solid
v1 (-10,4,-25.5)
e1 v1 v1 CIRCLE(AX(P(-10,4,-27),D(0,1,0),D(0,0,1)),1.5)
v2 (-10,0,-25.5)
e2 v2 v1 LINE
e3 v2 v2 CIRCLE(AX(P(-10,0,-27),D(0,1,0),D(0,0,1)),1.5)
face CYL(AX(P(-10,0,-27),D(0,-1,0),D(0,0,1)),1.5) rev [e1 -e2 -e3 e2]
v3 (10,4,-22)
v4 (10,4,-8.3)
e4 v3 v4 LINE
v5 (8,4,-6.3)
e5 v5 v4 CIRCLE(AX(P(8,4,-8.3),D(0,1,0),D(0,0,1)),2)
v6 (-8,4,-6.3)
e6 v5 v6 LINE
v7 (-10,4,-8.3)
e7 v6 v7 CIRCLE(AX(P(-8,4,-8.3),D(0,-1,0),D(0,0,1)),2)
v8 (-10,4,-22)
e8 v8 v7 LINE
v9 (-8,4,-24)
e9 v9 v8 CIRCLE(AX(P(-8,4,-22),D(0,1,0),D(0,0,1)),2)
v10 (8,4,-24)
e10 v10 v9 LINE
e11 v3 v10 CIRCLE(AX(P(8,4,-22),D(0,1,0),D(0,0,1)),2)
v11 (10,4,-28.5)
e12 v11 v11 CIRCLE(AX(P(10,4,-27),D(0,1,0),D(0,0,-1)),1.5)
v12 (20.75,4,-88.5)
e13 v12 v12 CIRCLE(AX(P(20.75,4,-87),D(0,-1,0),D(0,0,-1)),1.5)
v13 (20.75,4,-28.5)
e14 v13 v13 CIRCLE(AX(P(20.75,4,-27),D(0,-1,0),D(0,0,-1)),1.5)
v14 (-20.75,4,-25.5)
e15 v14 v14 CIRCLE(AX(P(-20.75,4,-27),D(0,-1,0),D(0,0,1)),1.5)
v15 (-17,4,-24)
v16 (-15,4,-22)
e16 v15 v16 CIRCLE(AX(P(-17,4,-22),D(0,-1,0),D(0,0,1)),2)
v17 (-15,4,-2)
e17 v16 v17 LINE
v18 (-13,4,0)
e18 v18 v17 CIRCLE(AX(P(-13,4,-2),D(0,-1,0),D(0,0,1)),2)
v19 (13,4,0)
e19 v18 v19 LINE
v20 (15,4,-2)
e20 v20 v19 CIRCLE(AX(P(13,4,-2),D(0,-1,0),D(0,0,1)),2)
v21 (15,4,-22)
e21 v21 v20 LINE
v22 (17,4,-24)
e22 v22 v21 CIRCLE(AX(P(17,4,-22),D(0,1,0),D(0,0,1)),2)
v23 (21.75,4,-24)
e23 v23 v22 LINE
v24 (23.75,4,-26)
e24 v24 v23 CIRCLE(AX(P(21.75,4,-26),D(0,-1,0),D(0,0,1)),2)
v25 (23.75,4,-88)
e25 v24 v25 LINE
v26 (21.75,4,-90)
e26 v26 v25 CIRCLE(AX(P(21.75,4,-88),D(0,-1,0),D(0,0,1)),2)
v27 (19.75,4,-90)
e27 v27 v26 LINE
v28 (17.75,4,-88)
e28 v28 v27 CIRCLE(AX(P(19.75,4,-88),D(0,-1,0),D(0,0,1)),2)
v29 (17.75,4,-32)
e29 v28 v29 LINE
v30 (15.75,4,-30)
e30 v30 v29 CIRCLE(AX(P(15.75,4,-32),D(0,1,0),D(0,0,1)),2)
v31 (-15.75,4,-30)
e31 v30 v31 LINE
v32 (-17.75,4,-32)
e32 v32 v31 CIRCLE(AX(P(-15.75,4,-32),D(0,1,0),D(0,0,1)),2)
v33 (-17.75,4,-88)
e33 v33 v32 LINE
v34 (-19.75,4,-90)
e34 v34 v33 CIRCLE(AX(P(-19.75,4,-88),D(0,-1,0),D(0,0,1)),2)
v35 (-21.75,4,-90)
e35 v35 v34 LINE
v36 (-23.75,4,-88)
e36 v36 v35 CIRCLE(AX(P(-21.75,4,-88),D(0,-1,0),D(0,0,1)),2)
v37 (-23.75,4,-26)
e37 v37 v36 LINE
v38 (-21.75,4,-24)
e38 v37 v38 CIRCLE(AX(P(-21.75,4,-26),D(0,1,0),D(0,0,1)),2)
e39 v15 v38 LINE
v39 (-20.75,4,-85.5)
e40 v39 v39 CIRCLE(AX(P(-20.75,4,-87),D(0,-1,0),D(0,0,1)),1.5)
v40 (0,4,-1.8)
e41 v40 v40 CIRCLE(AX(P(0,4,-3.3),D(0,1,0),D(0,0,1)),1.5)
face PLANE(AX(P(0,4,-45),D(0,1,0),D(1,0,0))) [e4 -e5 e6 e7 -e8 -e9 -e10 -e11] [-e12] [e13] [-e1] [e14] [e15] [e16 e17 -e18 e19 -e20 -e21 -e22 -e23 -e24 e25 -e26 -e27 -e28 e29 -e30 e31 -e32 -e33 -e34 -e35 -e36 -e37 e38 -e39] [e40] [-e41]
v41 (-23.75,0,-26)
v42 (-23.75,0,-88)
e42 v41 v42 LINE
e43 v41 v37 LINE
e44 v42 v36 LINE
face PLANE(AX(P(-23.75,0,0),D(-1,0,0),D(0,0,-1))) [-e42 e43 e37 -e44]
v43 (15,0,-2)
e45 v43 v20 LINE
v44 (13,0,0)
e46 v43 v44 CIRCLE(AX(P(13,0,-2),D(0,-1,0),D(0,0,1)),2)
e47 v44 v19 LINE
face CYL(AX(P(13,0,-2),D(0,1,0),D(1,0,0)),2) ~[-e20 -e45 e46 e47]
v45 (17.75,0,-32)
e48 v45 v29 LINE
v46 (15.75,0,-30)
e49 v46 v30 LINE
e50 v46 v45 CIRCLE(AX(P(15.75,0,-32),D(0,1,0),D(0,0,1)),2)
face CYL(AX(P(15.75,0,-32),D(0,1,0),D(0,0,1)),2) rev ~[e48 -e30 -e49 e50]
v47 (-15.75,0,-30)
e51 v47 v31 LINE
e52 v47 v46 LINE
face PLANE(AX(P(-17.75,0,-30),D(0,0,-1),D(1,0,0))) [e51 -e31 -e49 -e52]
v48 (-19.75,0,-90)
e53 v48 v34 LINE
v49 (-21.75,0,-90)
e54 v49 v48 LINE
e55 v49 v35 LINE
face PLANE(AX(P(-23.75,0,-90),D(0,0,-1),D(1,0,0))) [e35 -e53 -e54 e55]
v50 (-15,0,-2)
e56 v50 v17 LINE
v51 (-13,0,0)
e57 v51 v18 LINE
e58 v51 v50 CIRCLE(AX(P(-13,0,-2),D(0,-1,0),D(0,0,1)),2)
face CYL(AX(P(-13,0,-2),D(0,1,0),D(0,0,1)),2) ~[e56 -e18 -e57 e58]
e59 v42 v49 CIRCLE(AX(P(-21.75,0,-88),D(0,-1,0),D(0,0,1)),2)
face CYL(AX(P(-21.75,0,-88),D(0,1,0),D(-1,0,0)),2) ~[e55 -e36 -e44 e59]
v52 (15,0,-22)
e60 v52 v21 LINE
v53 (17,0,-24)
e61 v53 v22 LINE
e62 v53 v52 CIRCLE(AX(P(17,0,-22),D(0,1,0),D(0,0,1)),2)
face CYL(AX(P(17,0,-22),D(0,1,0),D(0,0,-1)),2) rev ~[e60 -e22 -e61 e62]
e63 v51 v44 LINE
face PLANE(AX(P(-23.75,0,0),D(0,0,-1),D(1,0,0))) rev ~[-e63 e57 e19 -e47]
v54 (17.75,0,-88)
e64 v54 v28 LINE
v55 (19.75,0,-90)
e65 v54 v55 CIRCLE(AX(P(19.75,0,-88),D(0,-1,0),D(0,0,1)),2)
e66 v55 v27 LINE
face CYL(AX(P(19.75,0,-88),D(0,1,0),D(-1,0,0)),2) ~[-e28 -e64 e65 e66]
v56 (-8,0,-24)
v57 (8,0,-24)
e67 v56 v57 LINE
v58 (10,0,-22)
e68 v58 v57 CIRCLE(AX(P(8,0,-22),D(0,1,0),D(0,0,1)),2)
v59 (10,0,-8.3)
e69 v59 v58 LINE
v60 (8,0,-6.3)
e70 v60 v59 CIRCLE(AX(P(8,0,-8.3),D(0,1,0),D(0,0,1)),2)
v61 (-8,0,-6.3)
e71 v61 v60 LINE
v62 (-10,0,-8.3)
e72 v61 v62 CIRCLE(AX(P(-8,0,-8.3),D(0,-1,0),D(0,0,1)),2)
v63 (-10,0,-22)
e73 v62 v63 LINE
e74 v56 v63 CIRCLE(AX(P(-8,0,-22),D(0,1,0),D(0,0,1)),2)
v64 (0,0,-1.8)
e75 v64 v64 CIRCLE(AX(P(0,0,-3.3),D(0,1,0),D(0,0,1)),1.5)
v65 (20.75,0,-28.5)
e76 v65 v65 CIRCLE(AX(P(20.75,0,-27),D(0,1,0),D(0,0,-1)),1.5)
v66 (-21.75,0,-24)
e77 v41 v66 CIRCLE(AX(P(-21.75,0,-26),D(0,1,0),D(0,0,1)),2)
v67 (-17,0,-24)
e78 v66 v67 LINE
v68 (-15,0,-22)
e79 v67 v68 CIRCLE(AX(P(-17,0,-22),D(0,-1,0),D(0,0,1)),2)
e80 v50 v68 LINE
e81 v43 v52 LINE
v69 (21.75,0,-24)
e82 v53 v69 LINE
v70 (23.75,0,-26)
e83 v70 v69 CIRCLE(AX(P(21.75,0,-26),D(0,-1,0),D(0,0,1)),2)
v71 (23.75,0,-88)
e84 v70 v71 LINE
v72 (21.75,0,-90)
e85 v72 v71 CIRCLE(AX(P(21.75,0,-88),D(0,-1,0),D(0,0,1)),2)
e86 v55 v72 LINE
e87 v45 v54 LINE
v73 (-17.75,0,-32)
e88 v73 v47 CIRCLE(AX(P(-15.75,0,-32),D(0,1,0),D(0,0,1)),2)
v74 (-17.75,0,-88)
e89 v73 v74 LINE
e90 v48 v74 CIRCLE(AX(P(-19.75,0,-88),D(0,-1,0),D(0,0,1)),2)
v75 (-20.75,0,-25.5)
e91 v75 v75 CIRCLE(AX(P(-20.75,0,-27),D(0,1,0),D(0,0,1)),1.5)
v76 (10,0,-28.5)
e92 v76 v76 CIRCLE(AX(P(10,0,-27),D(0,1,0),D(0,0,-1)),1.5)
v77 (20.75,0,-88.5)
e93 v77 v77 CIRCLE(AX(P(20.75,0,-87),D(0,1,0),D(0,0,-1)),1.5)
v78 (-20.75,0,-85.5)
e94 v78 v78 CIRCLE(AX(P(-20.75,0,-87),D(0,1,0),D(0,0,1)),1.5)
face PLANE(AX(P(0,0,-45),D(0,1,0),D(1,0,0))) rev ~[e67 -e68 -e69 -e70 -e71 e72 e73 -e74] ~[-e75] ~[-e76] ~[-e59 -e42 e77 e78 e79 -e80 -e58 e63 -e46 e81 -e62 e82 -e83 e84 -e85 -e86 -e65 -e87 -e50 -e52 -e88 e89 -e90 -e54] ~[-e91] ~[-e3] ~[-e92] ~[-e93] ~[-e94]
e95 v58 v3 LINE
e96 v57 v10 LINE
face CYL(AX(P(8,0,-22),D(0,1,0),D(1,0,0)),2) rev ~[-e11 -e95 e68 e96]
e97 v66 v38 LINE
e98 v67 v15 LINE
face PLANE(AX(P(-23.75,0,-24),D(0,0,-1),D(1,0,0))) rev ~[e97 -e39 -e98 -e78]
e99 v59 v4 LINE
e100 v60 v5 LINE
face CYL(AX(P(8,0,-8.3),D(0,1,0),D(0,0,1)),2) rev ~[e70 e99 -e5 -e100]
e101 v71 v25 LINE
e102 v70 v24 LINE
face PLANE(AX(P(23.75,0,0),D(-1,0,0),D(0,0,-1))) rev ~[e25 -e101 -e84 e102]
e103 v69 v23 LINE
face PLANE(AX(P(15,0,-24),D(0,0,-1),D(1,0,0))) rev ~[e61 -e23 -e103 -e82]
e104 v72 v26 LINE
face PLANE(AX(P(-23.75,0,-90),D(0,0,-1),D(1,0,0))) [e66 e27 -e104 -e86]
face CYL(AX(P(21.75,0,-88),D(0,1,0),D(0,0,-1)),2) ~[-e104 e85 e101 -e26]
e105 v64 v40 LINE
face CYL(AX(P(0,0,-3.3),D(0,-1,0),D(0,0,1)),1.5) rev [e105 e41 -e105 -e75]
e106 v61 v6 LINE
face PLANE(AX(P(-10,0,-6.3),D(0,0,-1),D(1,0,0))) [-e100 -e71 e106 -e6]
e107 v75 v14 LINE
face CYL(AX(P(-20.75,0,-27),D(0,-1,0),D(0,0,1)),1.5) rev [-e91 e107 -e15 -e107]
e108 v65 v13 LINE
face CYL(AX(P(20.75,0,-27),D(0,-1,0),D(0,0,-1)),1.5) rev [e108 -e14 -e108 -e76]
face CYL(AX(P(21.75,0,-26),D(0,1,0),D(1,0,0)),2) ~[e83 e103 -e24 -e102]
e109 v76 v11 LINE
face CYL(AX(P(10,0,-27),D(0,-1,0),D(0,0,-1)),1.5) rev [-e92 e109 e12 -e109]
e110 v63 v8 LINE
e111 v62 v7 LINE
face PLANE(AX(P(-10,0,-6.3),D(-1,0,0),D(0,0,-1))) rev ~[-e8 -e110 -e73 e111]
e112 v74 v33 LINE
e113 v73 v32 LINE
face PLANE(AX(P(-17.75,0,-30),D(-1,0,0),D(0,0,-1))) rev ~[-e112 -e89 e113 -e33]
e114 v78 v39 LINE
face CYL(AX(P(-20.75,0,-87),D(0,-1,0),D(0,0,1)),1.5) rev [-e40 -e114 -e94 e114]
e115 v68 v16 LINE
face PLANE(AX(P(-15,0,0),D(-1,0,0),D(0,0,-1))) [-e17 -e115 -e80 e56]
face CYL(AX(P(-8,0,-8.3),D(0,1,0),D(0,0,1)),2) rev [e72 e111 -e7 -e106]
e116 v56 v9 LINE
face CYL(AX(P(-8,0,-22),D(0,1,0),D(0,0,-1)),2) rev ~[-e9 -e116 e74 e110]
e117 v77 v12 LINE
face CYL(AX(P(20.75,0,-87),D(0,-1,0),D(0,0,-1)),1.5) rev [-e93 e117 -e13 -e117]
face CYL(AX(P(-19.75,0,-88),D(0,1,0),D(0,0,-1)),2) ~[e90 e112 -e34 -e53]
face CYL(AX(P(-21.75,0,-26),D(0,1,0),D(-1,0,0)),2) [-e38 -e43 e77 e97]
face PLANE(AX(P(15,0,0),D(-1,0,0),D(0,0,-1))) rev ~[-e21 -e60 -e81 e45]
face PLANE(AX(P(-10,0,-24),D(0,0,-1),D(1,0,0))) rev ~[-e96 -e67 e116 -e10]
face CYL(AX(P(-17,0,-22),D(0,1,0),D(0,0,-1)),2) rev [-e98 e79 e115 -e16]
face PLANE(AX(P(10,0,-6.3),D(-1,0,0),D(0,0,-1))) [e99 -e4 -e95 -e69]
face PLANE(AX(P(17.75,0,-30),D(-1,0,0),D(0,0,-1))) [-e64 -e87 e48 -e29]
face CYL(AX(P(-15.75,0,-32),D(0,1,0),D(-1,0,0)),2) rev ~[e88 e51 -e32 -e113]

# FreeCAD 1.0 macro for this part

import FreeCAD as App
import Part
import Sketcher
Q = App.Units.Quantity


def edges_at(feature, points):
    """Names of the edges that pass closest to the given points."""
    edges = feature.Shape.Edges
    near = lambda p: min(range(len(edges)), key=lambda i: edges[i].distToShape(Part.Vertex(*p))[0])
    return sorted({f"Edge{near(p) + 1}" for p in points})

doc = App.newDocument("Part")
body = doc.addObject("PartDesign::Body", "Body")

sketch1 = body.newObject("Sketcher::SketchObject", "Sketch")
sketch1.AttachmentSupport = (doc.getObject("XZ_Plane"), [""])
sketch1.MapMode = "FlatFace"
sketch1.addGeometry([
    Part.LineSegment(App.Vector(-23.75, -90, 0), App.Vector(-23.75, 0, 0)),
    Part.LineSegment(App.Vector(-23.75, 0, 0), App.Vector(23.75, 0, 0)),
    Part.LineSegment(App.Vector(23.75, 0, 0), App.Vector(23.75, -90, 0)),
    Part.LineSegment(App.Vector(23.75, -90, 0), App.Vector(-23.75, -90, 0)),
    Part.Circle(App.Vector(0, -3.3, 0), App.Vector(0, 0, 1), 1.5),
    Part.Circle(App.Vector(-10, -27, 0), App.Vector(0, 0, 1), 1.5),
    Part.Circle(App.Vector(10, -27, 0), App.Vector(0, 0, 1), 1.5),
], False)
sketch1.addConstraint([
    Sketcher.Constraint("Coincident", 0, 2, 1, 1),
    Sketcher.Constraint("Coincident", 1, 2, 2, 1),
    Sketcher.Constraint("Coincident", 2, 2, 3, 1),
    Sketcher.Constraint("Coincident", 3, 2, 0, 1),
    Sketcher.Constraint("Vertical", 0),
    Sketcher.Constraint("Horizontal", 1),
    Sketcher.Constraint("Vertical", 2),
    Sketcher.Constraint("Horizontal", 3),
    Sketcher.Constraint("Equal", 4, 5),
    Sketcher.Constraint("Equal", 5, 6),
    Sketcher.Constraint("Symmetric", 0, 2, 1, 2, -1, 1),
    Sketcher.Constraint("Symmetric", 5, 3, 6, 3, -2),
    Sketcher.Constraint("PointOnObject", 4, 3, -2),
    Sketcher.Constraint("Diameter", 4, Q("3 mm")),
    Sketcher.Constraint("DistanceY", 0, 1, 0, 2, Q("90 mm")),
    Sketcher.Constraint("DistanceX", 1, 1, 1, 2, Q("47.5 mm")),
    Sketcher.Constraint("DistanceX", 5, 3, -1, 1, Q("10 mm")),
    Sketcher.Constraint("DistanceY", 5, 3, -1, 1, Q("27 mm")),
    Sketcher.Constraint("DistanceY", 4, 3, -1, 1, Q("3.3 mm")),
])
pad1 = body.newObject("PartDesign::Pad", "Pad")
pad1.Profile = sketch1
pad1.Length = 4
pad1.Reversed = True

sketch2 = body.newObject("Sketcher::SketchObject", "Sketch001")
sketch2.AttachmentSupport = (doc.getObject("XZ_Plane"), [""])
sketch2.MapMode = "FlatFace"
sketch2.addGeometry([
    Part.Circle(App.Vector(-20.75, -87, 0), App.Vector(0, 0, 1), 1.5),
    Part.Circle(App.Vector(20.75, -87, 0), App.Vector(0, 0, 1), 1.5),
    Part.Circle(App.Vector(-20.75, -27, 0), App.Vector(0, 0, 1), 1.5),
    Part.Circle(App.Vector(20.75, -27, 0), App.Vector(0, 0, 1), 1.5),
    Part.LineSegment(App.Vector(-17.75, -90, 0), App.Vector(-17.75, -30, 0)),
    Part.LineSegment(App.Vector(-17.75, -30, 0), App.Vector(17.75, -30, 0)),
    Part.LineSegment(App.Vector(17.75, -30, 0), App.Vector(17.75, -90, 0)),
    Part.LineSegment(App.Vector(17.75, -90, 0), App.Vector(-17.75, -90, 0)),
    Part.LineSegment(App.Vector(-23.75, -24, 0), App.Vector(-23.75, 0, 0)),
    Part.LineSegment(App.Vector(-23.75, 0, 0), App.Vector(-15, 0, 0)),
    Part.LineSegment(App.Vector(-15, 0, 0), App.Vector(-15, -24, 0)),
    Part.LineSegment(App.Vector(-15, -24, 0), App.Vector(-23.75, -24, 0)),
    Part.LineSegment(App.Vector(15, -24, 0), App.Vector(15, 0, 0)),
    Part.LineSegment(App.Vector(15, 0, 0), App.Vector(23.75, 0, 0)),
    Part.LineSegment(App.Vector(23.75, 0, 0), App.Vector(23.75, -24, 0)),
    Part.LineSegment(App.Vector(23.75, -24, 0), App.Vector(15, -24, 0)),
    Part.LineSegment(App.Vector(-10, -24, 0), App.Vector(-10, -6.3, 0)),
    Part.LineSegment(App.Vector(-10, -6.3, 0), App.Vector(10, -6.3, 0)),
    Part.LineSegment(App.Vector(10, -6.3, 0), App.Vector(10, -24, 0)),
    Part.LineSegment(App.Vector(10, -24, 0), App.Vector(-10, -24, 0)),
], False)
sketch2.addConstraint([
    Sketcher.Constraint("Coincident", 4, 2, 5, 1),
    Sketcher.Constraint("Coincident", 5, 2, 6, 1),
    Sketcher.Constraint("Coincident", 6, 2, 7, 1),
    Sketcher.Constraint("Coincident", 7, 2, 4, 1),
    Sketcher.Constraint("Coincident", 8, 2, 9, 1),
    Sketcher.Constraint("Coincident", 9, 2, 10, 1),
    Sketcher.Constraint("Coincident", 10, 2, 11, 1),
    Sketcher.Constraint("Coincident", 11, 2, 8, 1),
    Sketcher.Constraint("Coincident", 12, 2, 13, 1),
    Sketcher.Constraint("Coincident", 13, 2, 14, 1),
    Sketcher.Constraint("Coincident", 14, 2, 15, 1),
    Sketcher.Constraint("Coincident", 15, 2, 12, 1),
    Sketcher.Constraint("Coincident", 16, 2, 17, 1),
    Sketcher.Constraint("Coincident", 17, 2, 18, 1),
    Sketcher.Constraint("Coincident", 18, 2, 19, 1),
    Sketcher.Constraint("Coincident", 19, 2, 16, 1),
    Sketcher.Constraint("Vertical", 4),
    Sketcher.Constraint("Horizontal", 5),
    Sketcher.Constraint("Vertical", 6),
    Sketcher.Constraint("Horizontal", 7),
    Sketcher.Constraint("Vertical", 8),
    Sketcher.Constraint("Horizontal", 9),
    Sketcher.Constraint("Vertical", 10),
    Sketcher.Constraint("Horizontal", 11),
    Sketcher.Constraint("Vertical", 12),
    Sketcher.Constraint("Horizontal", 13),
    Sketcher.Constraint("Vertical", 14),
    Sketcher.Constraint("Horizontal", 15),
    Sketcher.Constraint("Vertical", 16),
    Sketcher.Constraint("Horizontal", 17),
    Sketcher.Constraint("Vertical", 18),
    Sketcher.Constraint("Horizontal", 19),
    Sketcher.Constraint("Equal", 0, 1),
    Sketcher.Constraint("Equal", 1, 2),
    Sketcher.Constraint("Equal", 2, 3),
    Sketcher.Constraint("Symmetric", 9, 2, 12, 2, -1, 1),
    Sketcher.Constraint("Symmetric", 0, 3, 1, 3, -2),
    Sketcher.Constraint("Symmetric", 2, 3, 3, 3, -2),
    Sketcher.Constraint("Symmetric", 8, 2, 13, 2, -2),
    Sketcher.Constraint("Horizontal", 11, 2, 14, 2),
    Sketcher.Constraint("Horizontal", 15, 2, 18, 2),
    Sketcher.Constraint("Vertical", 0, 3, 2, 3),
    Sketcher.Constraint("Diameter", 0, Q("3 mm")),
    Sketcher.Constraint("DistanceX", 17, 1, 17, 2, Q("20 mm")),
    Sketcher.Constraint("DistanceY", 4, 1, 4, 2, Q("60 mm")),
    Sketcher.Constraint("DistanceY", 8, 1, 8, 2, Q("24 mm")),
    Sketcher.Constraint("DistanceX", 5, 1, 5, 2, Q("35.5 mm")),
    Sketcher.Constraint("DistanceY", 16, 1, 16, 2, Q("17.7 mm")),
    Sketcher.Constraint("DistanceY", 0, 3, -1, 1, Q("87 mm")),
    Sketcher.Constraint("DistanceY", 2, 3, -1, 1, Q("27 mm")),
    Sketcher.Constraint("DistanceY", 4, 2, -1, 1, Q("30 mm")),
    Sketcher.Constraint("DistanceX", 9, 2, -1, 1, Q("15 mm")),
    Sketcher.Constraint("DistanceX", 16, 2, -1, 1, Q("10 mm")),
    Sketcher.Constraint("DistanceX", 2, 3, 4, 2, Q("3 mm")),
    Sketcher.Constraint("DistanceX", 5, 2, 3, 3, Q("3 mm")),
    Sketcher.Constraint("DistanceX", 8, 2, 2, 3, Q("3 mm")),
])
pocket1 = body.newObject("PartDesign::Pocket", "Pocket")
pocket1.Profile = sketch2
pocket1.Type = "ThroughAll"
doc.recompute()

fillet = body.newObject("PartDesign::Fillet", "Fillet")
fillet.Base = (pocket1, edges_at(pocket1, [
    (-23.75, 2, -24),
    (-15, 2, 0),
    (-15, 2, -24),
    (-10, 2, -24),
    (-10, 2, -6.3),
    (10, 2, -6.3),
    (10, 2, -24),
    (23.75, 2, -24),
    (15, 2, -24),
    (15, 2, 0),
    (-17.75, 2, -90),
    (-17.75, 2, -30),
    (17.75, 2, -30),
    (17.75, 2, -90),
    (-23.75, 2, -90),
    (23.75, 2, -90),
]))
fillet.Radius = 2

doc.recompute()
